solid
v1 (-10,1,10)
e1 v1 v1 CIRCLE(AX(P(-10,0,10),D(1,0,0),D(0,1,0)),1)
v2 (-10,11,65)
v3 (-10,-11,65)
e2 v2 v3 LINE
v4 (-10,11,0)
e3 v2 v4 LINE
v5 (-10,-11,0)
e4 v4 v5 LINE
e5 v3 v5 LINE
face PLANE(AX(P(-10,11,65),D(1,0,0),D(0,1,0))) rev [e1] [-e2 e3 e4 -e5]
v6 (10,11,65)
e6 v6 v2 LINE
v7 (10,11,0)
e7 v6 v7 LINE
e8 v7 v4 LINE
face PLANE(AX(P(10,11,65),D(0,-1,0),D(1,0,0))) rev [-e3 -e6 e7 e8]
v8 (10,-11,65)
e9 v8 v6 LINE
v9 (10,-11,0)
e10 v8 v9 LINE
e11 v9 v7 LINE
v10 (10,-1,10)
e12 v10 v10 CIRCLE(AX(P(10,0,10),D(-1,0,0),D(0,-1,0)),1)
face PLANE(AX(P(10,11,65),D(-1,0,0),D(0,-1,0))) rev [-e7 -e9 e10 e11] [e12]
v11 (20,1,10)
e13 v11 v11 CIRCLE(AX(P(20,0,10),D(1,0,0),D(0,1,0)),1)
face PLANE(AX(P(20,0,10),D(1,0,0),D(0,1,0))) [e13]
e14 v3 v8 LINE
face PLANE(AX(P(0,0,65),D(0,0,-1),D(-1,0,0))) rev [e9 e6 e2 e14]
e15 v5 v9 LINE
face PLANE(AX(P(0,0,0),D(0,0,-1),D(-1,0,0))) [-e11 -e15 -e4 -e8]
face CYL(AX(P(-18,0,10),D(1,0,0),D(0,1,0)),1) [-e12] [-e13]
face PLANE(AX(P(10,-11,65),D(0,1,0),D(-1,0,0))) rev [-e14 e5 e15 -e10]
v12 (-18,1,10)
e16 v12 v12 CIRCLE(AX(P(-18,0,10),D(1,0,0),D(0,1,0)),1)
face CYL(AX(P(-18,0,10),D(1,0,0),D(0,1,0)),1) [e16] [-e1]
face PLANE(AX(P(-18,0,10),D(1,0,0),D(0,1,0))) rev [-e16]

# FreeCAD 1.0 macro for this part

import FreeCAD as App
import Part
import Sketcher


def add_polygon(sketch, points):
    """Adds a closed chain of lines whose ends are joined by coincident constraints."""
    first, n = sketch.GeometryCount, len(points)
    for a, b in zip(points, points[1:] + points[:1]):
        sketch.addGeometry(Part.LineSegment(App.Vector(*a, 0), App.Vector(*b, 0)), False)
    for i in range(n):
        sketch.addConstraint(Sketcher.Constraint("Coincident", first + i, 2, first + (i + 1) % n, 1))

doc = App.newDocument("Part")
body = doc.addObject("PartDesign::Body", "Body")

sketch1 = body.newObject("Sketcher::SketchObject", "Sketch")
sketch1.AttachmentSupport = (doc.getObject("XY_Plane"), [""])
sketch1.MapMode = "FlatFace"
add_polygon(sketch1, [(-10, 11), (-10, -11), (10, -11), (10, 11)])
sketch1.addConstraint([
    Sketcher.Constraint("Vertical", 0),
    Sketcher.Constraint("Horizontal", 1),
    Sketcher.Constraint("Vertical", 2),
    Sketcher.Constraint("Horizontal", 3),
    Sketcher.Constraint("Symmetric", 0, 2, 2, 2, -1, 1),
    Sketcher.Constraint("DistanceX", 1, 1, 1, 2, 20.0),
    Sketcher.Constraint("DistanceY", 0, 2, 0, 1, 22.0),
])
pad1 = body.newObject("PartDesign::Pad", "Pad")
pad1.Profile = sketch1
pad1.Length = 65

sketch2 = body.newObject("Sketcher::SketchObject", "Sketch001")
sketch2.AttachmentSupport = (doc.getObject("YZ_Plane"), [""])
sketch2.MapMode = "FlatFace"
sketch2.AttachmentOffset = App.Placement(App.Vector(0, 0, 10), App.Rotation())
sketch2.addGeometry(Part.Circle(App.Vector(0, 10, 0), App.Vector(0, 0, 1), 1), False)
sketch2.addConstraint([
    Sketcher.Constraint("PointOnObject", 0, 3, -2),
    Sketcher.Constraint("Diameter", 0, 2.0),
    Sketcher.Constraint("DistanceY", -1, 1, 0, 3, 10.0),
])
pad2 = body.newObject("PartDesign::Pad", "Pad001")
pad2.Profile = sketch2
pad2.Type = "TwoLengths"
pad2.Length = 10
pad2.Length2 = 28

doc.recompute()
